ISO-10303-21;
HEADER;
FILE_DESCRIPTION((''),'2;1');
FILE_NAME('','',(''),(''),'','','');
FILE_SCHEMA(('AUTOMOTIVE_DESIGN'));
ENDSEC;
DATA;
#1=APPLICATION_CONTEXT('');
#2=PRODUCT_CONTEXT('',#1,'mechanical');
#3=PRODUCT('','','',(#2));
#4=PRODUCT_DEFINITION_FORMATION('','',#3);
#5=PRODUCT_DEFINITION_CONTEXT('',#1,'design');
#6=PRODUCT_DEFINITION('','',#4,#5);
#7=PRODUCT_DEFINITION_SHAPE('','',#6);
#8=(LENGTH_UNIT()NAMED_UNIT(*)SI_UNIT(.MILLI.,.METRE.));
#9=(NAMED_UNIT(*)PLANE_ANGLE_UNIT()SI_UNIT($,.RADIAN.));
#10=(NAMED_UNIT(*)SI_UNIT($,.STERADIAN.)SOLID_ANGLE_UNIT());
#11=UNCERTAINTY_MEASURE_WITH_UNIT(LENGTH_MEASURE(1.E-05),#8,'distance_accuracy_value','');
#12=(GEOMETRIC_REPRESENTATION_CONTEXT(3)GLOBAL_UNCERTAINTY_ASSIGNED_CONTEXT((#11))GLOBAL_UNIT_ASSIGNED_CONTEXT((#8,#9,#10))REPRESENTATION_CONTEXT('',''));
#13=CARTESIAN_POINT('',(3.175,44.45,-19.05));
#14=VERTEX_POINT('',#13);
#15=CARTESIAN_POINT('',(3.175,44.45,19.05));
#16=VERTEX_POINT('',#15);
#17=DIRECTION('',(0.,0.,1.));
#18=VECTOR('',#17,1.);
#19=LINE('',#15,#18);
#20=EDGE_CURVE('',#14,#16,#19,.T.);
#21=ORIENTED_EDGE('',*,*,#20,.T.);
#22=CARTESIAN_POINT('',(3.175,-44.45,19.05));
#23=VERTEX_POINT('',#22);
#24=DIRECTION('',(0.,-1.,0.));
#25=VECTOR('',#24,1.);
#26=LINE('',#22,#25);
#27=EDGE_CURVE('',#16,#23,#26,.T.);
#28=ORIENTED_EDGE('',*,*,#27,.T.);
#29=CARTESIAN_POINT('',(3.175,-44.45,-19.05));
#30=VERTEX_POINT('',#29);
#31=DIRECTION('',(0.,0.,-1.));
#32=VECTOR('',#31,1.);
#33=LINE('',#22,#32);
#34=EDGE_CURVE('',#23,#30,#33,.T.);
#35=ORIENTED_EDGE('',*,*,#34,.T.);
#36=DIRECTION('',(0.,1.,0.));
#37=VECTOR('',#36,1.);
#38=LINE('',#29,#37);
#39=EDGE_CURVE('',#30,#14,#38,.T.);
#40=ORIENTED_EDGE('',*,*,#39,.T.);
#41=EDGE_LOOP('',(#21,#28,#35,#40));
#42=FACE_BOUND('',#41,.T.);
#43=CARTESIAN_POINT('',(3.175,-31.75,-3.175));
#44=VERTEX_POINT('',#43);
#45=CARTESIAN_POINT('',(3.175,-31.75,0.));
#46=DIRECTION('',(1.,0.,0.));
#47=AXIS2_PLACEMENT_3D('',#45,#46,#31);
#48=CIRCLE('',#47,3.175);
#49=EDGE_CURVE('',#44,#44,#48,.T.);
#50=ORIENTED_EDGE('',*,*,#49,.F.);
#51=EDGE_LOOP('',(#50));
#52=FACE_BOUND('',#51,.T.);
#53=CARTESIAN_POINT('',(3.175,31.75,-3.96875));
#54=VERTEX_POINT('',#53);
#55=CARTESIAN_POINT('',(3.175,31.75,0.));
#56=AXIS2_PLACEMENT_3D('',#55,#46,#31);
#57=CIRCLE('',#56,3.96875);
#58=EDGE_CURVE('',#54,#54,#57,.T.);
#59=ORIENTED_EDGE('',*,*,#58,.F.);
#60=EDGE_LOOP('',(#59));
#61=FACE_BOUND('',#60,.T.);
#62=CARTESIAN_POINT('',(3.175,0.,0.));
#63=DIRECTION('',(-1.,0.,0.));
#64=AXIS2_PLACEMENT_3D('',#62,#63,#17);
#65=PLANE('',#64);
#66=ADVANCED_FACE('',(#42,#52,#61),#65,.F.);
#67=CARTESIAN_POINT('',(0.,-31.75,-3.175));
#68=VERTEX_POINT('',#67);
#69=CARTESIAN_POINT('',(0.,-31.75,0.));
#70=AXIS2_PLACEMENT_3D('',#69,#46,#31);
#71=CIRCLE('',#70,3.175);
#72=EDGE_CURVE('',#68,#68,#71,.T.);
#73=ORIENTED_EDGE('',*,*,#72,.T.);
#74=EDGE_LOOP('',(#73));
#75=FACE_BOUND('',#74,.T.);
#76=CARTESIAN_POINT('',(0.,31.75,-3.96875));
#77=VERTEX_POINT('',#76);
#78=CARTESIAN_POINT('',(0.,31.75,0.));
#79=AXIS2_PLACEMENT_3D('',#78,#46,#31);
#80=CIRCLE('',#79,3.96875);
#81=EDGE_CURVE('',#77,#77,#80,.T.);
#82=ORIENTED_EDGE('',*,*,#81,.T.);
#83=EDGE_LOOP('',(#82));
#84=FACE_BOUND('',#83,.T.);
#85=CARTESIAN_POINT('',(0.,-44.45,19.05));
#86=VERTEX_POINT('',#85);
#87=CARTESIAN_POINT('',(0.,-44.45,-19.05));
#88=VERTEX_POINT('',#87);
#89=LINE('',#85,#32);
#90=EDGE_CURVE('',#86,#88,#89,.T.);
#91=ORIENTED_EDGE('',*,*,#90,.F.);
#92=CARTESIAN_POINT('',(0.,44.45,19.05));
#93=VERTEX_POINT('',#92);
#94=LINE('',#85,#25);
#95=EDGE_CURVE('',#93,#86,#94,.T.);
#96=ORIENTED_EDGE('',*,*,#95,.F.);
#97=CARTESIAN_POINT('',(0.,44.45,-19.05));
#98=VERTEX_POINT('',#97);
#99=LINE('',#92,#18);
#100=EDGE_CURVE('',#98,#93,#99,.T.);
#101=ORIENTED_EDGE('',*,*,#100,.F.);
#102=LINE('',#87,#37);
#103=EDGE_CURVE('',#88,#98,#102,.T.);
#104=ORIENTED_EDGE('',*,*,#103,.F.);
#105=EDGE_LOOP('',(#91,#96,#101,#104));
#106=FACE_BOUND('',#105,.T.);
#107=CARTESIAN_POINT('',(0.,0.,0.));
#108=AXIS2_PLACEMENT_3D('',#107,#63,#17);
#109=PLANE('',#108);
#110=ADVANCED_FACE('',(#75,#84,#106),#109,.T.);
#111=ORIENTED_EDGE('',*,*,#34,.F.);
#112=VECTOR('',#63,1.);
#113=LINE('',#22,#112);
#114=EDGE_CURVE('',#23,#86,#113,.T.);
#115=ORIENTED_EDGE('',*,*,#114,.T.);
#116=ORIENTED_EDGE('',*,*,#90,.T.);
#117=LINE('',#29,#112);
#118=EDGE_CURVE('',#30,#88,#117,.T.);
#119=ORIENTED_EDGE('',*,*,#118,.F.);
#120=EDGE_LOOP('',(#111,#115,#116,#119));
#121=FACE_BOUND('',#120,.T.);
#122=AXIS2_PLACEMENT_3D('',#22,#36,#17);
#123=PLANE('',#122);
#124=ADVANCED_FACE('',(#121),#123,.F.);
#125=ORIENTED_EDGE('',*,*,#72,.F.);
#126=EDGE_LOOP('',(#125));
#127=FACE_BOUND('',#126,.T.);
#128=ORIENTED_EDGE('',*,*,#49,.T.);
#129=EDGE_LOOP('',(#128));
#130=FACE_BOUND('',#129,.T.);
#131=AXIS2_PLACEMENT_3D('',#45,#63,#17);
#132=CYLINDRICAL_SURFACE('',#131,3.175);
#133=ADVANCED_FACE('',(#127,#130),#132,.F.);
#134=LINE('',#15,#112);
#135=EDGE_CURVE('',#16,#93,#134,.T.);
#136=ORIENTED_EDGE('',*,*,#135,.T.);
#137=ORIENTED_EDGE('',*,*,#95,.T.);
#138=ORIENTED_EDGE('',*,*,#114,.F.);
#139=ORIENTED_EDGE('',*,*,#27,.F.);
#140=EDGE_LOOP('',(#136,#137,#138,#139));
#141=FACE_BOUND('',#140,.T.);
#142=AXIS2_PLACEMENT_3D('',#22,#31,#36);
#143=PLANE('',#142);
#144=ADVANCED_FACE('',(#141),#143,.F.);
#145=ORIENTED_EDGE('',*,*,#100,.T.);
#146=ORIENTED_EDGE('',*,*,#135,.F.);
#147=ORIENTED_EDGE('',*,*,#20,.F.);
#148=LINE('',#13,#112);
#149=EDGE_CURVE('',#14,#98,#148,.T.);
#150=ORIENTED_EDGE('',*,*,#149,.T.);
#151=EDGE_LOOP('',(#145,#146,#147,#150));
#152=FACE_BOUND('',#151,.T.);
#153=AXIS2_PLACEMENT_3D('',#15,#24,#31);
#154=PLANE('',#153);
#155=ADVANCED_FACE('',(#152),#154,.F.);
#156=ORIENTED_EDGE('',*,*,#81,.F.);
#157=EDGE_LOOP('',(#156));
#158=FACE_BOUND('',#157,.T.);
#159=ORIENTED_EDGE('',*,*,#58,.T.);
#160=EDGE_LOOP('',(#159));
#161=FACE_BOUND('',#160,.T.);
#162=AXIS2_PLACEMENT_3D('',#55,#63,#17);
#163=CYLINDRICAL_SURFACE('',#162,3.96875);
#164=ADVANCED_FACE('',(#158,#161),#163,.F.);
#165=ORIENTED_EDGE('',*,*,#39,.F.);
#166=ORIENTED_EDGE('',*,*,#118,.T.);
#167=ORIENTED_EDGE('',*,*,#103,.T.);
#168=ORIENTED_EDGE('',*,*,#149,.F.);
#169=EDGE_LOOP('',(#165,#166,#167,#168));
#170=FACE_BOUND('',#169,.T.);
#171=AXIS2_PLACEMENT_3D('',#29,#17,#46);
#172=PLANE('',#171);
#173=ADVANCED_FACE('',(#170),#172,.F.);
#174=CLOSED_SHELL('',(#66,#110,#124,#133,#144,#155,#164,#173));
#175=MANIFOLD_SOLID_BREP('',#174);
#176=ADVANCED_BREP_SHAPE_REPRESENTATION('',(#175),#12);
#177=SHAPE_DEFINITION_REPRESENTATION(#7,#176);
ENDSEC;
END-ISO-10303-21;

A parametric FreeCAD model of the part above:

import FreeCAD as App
import Part
import Sketcher
Q = App.Units.Quantity


def add_polygon(sketch, points):
    """Adds a closed chain of lines whose ends are joined by coincident constraints."""
    first, n = sketch.GeometryCount, len(points)
    for a, b in zip(points, points[1:] + points[:1]):
        sketch.addGeometry(Part.LineSegment(App.Vector(*a, 0), App.Vector(*b, 0)), False)
    for i in range(n):
        sketch.addConstraint(Sketcher.Constraint("Coincident", first + i, 2, first + (i + 1) % n, 1))

doc = App.newDocument("Part")
params = doc.addObject("Spreadsheet::Sheet", "Params")
for row, (alias, value) in enumerate([
    ("sketch1_diameter", "0.25 in"),
    ("sketch1_diameter2", "0.3125 in"),
    ("sketch1_width", "3.5 in"),
    ("sketch1_height", "1.5 in"),
    ("pad1_length", "0.125 in"),
], start=1):
    params.set(f"A{row}", alias)
    params.set(f"B{row}", "=" + value)
    params.setAlias(f"B{row}", alias)

body = doc.addObject("PartDesign::Body", "Body")

sketch1 = doc.addObject("Sketcher::SketchObject", "Sketch")
body.addObject(sketch1)
sketch1.AttachmentSupport = (doc.YZ_Plane, [""])
sketch1.MapMode = "FlatFace"
add_polygon(sketch1, [(44.5, 19.1), (-44.5, 19.1), (-44.5, -19.1), (44.5, -19.1)])
sketch1.addGeometry(Part.Circle(App.Vector(-31.8, 0, 0), App.Vector(0, 0, 1), 3.2), False)
sketch1.addGeometry(Part.Circle(App.Vector(31.8, 0, 0), App.Vector(0, 0, 1), 4), False)
sketch1.addConstraint([
    Sketcher.Constraint("Horizontal", 0),
    Sketcher.Constraint("Vertical", 1),
    Sketcher.Constraint("Horizontal", 2),
    Sketcher.Constraint("Vertical", 3),
    Sketcher.Constraint("Symmetric", 4, 3, 5, 3, -1, 1),
    Sketcher.Constraint("Symmetric", 0, 2, 2, 2, -1, 1),
    Sketcher.Constraint("PointOnObject", 4, 3, -1),
    Sketcher.Constraint("Diameter", 4, Q("0.25 in")),
    Sketcher.Constraint("Diameter", 5, Q("0.3125 in")),
    Sketcher.Constraint("DistanceX", 0, 2, 0, 1, Q("3.5 in")),
    Sketcher.Constraint("DistanceY", 1, 2, 1, 1, Q("1.5 in")),
    Sketcher.Constraint("DistanceX", 0, 2, 5, 3, Q("3 in")),
])
sketch1.setExpression("Constraints[11]", "Params.sketch1_diameter")
sketch1.setExpression("Constraints[12]", "Params.sketch1_diameter2")
sketch1.setExpression("Constraints[13]", "Params.sketch1_width")
sketch1.setExpression("Constraints[14]", "Params.sketch1_height")
pad1 = doc.addObject("PartDesign::Pad", "Pad")
body.addObject(pad1)
pad1.Profile = sketch1
pad1.setExpression("Length", "Params.pad1_length")

doc.recompute()
